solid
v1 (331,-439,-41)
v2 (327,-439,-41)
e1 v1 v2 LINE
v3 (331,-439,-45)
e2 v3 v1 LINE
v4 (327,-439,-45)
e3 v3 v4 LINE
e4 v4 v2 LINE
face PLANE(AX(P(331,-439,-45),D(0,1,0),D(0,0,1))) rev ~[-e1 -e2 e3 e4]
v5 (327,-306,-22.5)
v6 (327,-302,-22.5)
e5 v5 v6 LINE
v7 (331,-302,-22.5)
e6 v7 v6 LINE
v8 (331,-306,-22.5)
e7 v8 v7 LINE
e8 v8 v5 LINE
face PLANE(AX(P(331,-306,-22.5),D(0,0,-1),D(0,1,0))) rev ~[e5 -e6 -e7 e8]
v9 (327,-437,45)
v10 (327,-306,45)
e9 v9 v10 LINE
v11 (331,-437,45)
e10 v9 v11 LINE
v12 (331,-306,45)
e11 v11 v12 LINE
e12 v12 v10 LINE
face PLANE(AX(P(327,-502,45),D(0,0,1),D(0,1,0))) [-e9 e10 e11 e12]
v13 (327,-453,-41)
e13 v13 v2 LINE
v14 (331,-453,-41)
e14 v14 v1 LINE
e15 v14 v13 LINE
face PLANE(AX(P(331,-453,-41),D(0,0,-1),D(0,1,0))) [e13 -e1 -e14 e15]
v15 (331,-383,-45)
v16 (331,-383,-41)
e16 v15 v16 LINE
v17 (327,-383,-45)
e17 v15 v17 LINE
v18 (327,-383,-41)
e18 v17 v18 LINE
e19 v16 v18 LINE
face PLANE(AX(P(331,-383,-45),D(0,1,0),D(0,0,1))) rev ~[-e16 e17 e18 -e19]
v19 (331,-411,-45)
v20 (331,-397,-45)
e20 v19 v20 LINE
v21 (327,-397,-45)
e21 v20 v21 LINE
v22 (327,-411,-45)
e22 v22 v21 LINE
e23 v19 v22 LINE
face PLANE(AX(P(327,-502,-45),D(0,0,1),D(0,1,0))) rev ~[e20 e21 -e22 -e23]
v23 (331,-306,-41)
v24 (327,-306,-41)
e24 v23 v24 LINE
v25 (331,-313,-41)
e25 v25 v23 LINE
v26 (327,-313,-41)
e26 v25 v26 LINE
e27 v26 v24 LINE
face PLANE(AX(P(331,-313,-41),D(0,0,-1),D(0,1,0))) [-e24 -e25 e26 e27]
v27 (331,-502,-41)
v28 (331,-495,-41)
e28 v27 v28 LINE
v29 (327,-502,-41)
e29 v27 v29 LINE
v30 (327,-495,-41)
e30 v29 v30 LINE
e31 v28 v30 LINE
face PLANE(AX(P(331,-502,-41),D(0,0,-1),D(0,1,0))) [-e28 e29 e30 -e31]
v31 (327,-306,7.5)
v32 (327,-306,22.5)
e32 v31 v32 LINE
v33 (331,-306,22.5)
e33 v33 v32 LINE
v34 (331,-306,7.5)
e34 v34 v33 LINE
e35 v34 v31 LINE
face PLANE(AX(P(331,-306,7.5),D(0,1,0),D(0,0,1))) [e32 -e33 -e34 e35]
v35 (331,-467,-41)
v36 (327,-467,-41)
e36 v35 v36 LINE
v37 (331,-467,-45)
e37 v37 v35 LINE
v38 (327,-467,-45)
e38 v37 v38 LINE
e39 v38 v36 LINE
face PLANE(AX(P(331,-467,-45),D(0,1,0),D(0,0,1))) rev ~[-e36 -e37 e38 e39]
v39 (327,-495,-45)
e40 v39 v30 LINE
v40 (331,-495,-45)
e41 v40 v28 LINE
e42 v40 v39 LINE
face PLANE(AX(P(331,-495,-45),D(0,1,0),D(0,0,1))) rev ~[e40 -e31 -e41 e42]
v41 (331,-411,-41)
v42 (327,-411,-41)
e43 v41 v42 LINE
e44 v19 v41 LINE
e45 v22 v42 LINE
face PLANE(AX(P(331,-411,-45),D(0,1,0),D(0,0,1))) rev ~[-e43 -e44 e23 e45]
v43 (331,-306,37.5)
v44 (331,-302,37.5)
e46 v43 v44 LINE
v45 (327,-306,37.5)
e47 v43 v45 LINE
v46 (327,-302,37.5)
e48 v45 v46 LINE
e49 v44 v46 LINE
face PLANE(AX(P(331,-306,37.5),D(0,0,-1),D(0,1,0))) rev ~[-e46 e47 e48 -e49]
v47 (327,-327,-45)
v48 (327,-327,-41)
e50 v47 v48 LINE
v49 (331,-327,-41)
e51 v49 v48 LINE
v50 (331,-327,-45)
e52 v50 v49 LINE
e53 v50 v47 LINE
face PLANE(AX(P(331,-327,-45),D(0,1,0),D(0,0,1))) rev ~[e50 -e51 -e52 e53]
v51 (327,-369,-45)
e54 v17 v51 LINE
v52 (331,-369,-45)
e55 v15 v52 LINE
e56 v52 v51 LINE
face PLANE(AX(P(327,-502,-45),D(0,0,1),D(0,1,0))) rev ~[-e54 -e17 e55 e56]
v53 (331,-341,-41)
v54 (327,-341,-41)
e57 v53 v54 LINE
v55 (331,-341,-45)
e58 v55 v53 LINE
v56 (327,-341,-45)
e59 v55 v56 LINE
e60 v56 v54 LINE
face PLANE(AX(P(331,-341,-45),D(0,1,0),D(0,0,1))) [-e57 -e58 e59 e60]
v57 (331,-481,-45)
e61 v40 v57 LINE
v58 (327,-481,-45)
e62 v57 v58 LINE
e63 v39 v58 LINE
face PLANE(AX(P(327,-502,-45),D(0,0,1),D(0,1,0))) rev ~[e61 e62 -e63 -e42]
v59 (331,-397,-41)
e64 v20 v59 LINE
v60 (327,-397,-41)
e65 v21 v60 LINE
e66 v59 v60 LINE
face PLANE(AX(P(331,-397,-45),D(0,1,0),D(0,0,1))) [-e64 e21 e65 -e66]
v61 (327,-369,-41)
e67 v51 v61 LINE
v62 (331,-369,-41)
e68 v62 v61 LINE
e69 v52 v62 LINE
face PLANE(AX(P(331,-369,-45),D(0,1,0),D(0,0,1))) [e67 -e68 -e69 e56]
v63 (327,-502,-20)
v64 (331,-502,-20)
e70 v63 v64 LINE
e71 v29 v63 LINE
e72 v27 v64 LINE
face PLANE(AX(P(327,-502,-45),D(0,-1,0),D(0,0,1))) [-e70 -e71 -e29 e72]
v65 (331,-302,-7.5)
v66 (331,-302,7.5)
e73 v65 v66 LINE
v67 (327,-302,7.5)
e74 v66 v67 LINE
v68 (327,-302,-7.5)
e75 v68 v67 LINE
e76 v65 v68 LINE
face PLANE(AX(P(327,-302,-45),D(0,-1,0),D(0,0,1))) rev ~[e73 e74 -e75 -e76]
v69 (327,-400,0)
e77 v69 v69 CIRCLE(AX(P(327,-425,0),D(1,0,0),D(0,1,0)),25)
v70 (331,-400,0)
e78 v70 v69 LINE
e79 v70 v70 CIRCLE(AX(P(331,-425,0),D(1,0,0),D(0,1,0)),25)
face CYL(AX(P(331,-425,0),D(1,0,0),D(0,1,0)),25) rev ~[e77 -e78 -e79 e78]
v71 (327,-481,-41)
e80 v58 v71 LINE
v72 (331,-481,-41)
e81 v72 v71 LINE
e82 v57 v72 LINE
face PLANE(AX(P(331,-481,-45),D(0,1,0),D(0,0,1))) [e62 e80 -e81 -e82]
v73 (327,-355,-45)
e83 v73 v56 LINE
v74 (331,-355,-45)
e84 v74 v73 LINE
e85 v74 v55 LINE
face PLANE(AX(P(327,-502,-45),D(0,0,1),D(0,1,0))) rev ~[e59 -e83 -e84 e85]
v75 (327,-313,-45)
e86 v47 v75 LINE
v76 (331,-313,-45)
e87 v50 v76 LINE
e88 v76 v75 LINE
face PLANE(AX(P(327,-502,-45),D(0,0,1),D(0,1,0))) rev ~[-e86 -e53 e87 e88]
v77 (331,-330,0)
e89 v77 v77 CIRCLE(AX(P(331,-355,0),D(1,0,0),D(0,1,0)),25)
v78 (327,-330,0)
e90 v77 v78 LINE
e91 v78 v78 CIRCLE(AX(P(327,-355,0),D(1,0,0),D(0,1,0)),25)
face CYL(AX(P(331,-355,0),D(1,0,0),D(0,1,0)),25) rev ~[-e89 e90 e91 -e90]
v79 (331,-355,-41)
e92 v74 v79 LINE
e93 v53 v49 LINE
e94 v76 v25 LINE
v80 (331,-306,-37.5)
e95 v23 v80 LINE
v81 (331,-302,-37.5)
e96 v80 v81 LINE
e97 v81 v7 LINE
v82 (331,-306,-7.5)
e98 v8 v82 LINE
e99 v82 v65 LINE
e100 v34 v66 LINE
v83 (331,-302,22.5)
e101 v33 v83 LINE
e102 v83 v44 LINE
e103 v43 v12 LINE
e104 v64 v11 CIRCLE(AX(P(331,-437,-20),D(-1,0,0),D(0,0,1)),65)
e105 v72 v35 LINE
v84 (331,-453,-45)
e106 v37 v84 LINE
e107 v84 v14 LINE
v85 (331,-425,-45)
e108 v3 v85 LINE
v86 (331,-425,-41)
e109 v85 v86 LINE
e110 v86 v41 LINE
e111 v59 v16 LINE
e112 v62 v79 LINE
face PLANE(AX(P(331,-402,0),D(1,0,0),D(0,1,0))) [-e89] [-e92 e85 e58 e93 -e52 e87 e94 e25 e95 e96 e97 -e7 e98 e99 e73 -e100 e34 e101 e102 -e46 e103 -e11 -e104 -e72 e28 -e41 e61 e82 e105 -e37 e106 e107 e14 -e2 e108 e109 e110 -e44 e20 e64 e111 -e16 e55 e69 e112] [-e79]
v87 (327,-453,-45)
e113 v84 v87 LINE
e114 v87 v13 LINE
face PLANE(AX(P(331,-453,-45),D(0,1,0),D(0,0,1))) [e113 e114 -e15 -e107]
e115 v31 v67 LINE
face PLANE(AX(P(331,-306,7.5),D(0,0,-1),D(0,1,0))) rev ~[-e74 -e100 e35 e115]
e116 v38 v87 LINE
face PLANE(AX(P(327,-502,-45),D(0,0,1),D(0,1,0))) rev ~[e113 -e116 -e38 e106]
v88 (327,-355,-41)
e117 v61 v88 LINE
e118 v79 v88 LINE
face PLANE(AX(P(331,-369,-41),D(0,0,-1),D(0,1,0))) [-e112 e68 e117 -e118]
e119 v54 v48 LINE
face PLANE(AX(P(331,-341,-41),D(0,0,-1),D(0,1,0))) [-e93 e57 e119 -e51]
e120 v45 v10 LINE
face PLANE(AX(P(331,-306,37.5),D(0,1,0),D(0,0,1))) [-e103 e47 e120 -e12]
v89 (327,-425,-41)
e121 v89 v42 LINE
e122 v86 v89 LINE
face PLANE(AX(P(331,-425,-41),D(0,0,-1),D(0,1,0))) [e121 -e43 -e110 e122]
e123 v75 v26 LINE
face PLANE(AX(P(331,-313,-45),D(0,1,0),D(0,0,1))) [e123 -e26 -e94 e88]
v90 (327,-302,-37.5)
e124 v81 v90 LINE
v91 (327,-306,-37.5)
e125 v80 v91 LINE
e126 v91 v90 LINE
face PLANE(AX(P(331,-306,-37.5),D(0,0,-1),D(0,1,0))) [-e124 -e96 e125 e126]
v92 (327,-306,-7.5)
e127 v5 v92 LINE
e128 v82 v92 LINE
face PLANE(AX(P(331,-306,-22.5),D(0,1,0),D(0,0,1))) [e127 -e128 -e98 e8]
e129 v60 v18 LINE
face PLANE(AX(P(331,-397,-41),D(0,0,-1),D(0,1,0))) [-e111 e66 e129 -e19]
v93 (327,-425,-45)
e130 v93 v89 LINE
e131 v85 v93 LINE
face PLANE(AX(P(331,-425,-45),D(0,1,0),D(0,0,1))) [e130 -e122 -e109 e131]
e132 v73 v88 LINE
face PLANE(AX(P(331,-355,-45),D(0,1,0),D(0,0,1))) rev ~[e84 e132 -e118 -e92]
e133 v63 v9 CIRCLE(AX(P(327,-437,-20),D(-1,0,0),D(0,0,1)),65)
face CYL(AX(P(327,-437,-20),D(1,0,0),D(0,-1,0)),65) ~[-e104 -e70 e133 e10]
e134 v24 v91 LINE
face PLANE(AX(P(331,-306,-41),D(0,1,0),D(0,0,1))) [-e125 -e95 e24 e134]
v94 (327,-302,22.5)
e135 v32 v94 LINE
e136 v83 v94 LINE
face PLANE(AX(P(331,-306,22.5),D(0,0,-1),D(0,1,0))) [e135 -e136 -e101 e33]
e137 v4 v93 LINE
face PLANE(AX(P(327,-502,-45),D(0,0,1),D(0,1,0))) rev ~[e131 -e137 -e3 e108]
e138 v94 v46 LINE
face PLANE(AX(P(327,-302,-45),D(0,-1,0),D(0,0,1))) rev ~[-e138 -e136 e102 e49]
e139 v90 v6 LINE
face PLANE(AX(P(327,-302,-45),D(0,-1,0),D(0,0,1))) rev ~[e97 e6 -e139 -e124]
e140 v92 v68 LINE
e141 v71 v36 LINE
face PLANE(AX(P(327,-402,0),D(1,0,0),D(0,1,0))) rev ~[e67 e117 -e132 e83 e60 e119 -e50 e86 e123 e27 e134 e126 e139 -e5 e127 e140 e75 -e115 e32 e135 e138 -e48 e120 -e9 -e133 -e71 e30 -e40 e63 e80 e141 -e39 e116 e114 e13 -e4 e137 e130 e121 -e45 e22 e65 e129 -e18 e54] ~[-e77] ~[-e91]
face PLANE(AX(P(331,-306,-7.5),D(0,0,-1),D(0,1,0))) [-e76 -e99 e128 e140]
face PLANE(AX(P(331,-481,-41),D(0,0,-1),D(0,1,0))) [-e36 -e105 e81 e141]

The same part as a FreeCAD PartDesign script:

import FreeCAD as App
import Part
import Sketcher

V = App.Vector


def edges_at(feature, points):
    """Names of the edges that pass closest to the given points."""
    edges = feature.Shape.Edges
    near = lambda p: min(range(len(edges)), key=lambda i: edges[i].distToShape(Part.Vertex(*p))[0])
    return sorted({f"Edge{near(p) + 1}" for p in points})


def add_polygon(sketch, points):
    """Adds a closed chain of lines whose ends are joined by coincident constraints."""
    first, n = sketch.GeometryCount, len(points)
    for a, b in zip(points, points[1:] + points[:1]):
        sketch.addGeometry(Part.LineSegment(App.Vector(*a, 0), App.Vector(*b, 0)), False)
    for i in range(n):
        sketch.addConstraint(Sketcher.Constraint("Coincident", first + i, 2, first + (i + 1) % n, 1))

doc = App.newDocument("Part")
body = doc.addObject("PartDesign::Body", "Body")

# Sketch on YZ plane
sketch1 = body.newObject("Sketcher::SketchObject", "Sketch")
sketch1.AttachmentSupport = (doc.getObject("YZ_Plane"), [""])
sketch1.MapMode = "FlatFace"
add_polygon(sketch1, [(-100, 45), (-100, -45), (100, -45), (100, 45)])  # lines 0-3
sketch1.addConstraint([
    Sketcher.Constraint("Vertical", 0),
    Sketcher.Constraint("Horizontal", 1),
    Sketcher.Constraint("Vertical", 2),
    Sketcher.Constraint("Horizontal", 3),
    Sketcher.Constraint("Symmetric", 0, 2, 2, 2, -1, 1),
    Sketcher.Constraint("DistanceX", 1, 1, 1, 2, 200.0),
    Sketcher.Constraint("DistanceY", 0, 2, 0, 1, 90.0),
])
pad1 = body.newObject("PartDesign::Pad", "Pad")
pad1.Profile = sketch1
pad1.Length = 4

# Sketch on YZ plane
sketch2 = body.newObject("Sketcher::SketchObject", "Sketch001")
sketch2.AttachmentSupport = (doc.getObject("YZ_Plane"), [""])
sketch2.MapMode = "FlatFace"
sketch2.AttachmentOffset = App.Placement(V(0, 0, 4), App.Rotation())
sketch2.addGeometry(Part.Circle(V(-23, 0, 0), V(0, 0, 1), 25), False)  # 0
sketch2.addGeometry(Part.Circle(V(47, 0, 0), V(0, 0, 1), 25), False)  # 1
add_polygon(sketch2, [(-100, -41), (-100, -45), (-93, -45), (-93, -41)])  # lines 2-5
add_polygon(sketch2, [(-79, -41), (-79, -45), (-65, -45), (-65, -41)])  # lines 6-9
add_polygon(sketch2, [(-51, -41), (-51, -45), (-37, -45), (-37, -41)])  # lines 10-13
add_polygon(sketch2, [(-23, -41), (-23, -45), (-9, -45), (-9, -41)])  # lines 14-17
add_polygon(sketch2, [(5, -41), (5, -45), (19, -45), (19, -41)])  # lines 18-21
add_polygon(sketch2, [(33, -41), (33, -45), (47, -45), (47, -41)])  # lines 22-25
add_polygon(sketch2, [(61, -41), (61, -45), (75, -45), (75, -41)])  # lines 26-29
add_polygon(sketch2, [(96, -7.5), (96, -22.5), (100, -22.5), (100, -7.5)])  # lines 30-33
add_polygon(sketch2, [(96, 22.5), (96, 7.5), (100, 7.5), (100, 22.5)])  # lines 34-37
add_polygon(sketch2, [(96, 45), (96, 37.5), (100, 37.5), (100, 45)])  # lines 38-41
add_polygon(sketch2, [(89, -41), (89, -45), (100, -45), (100, -37.5), (96, -37.5), (96, -41)])  # lines 42-47
sketch2.addConstraint([
    Sketcher.Constraint("Vertical", 2),
    Sketcher.Constraint("Horizontal", 3),
    Sketcher.Constraint("Vertical", 4),
    Sketcher.Constraint("Horizontal", 5),
    Sketcher.Constraint("Vertical", 6),
    Sketcher.Constraint("Horizontal", 7),
    Sketcher.Constraint("Vertical", 8),
    Sketcher.Constraint("Horizontal", 9),
    Sketcher.Constraint("Vertical", 10),
    Sketcher.Constraint("Horizontal", 11),
    Sketcher.Constraint("Vertical", 12),
    Sketcher.Constraint("Horizontal", 13),
    Sketcher.Constraint("Vertical", 14),
    Sketcher.Constraint("Horizontal", 15),
    Sketcher.Constraint("Vertical", 16),
    Sketcher.Constraint("Horizontal", 17),
    Sketcher.Constraint("Vertical", 18),
    Sketcher.Constraint("Horizontal", 19),
    Sketcher.Constraint("Vertical", 20),
    Sketcher.Constraint("Horizontal", 21),
    Sketcher.Constraint("Vertical", 22),
    Sketcher.Constraint("Horizontal", 23),
    Sketcher.Constraint("Vertical", 24),
    Sketcher.Constraint("Horizontal", 25),
    Sketcher.Constraint("Vertical", 26),
    Sketcher.Constraint("Horizontal", 27),
    Sketcher.Constraint("Vertical", 28),
    Sketcher.Constraint("Horizontal", 29),
    Sketcher.Constraint("Vertical", 30),
    Sketcher.Constraint("Horizontal", 31),
    Sketcher.Constraint("Vertical", 32),
    Sketcher.Constraint("Horizontal", 33),
    Sketcher.Constraint("Vertical", 34),
    Sketcher.Constraint("Horizontal", 35),
    Sketcher.Constraint("Vertical", 36),
    Sketcher.Constraint("Horizontal", 37),
    Sketcher.Constraint("Vertical", 38),
    Sketcher.Constraint("Horizontal", 39),
    Sketcher.Constraint("Vertical", 40),
    Sketcher.Constraint("Horizontal", 41),
    Sketcher.Constraint("Vertical", 42),
    Sketcher.Constraint("Horizontal", 43),
    Sketcher.Constraint("Vertical", 44),
    Sketcher.Constraint("Horizontal", 45),
    Sketcher.Constraint("Vertical", 46),
    Sketcher.Constraint("Horizontal", 47),
    Sketcher.Constraint("Equal", 0, 1),
    Sketcher.Constraint("Symmetric", 2, 2, 40, 2, -1, 1),
    Sketcher.Constraint("Symmetric", 2, 2, 43, 2, -2),
    Sketcher.Constraint("Symmetric", 33, 2, 34, 2, -1),
    Sketcher.Constraint("Symmetric", 31, 2, 36, 2, -1),
    Sketcher.Constraint("Symmetric", 38, 2, 45, 2, -1),
    Sketcher.Constraint("PointOnObject", 0, 3, -1),
    Sketcher.Constraint("PointOnObject", 1, 3, -1),
    Sketcher.Constraint("Horizontal", 3, 2, 6, 2),
    Sketcher.Constraint("Horizontal", 5, 2, 8, 2),
    Sketcher.Constraint("Horizontal", 7, 2, 10, 2),
    Sketcher.Constraint("Horizontal", 9, 2, 12, 2),
    Sketcher.Constraint("Horizontal", 11, 2, 14, 2),
    Sketcher.Constraint("Horizontal", 13, 2, 16, 2),
    Sketcher.Constraint("Horizontal", 15, 2, 18, 2),
    Sketcher.Constraint("Horizontal", 17, 2, 20, 2),
    Sketcher.Constraint("Horizontal", 19, 2, 22, 2),
    Sketcher.Constraint("Horizontal", 21, 2, 24, 2),
    Sketcher.Constraint("Horizontal", 23, 2, 26, 2),
    Sketcher.Constraint("Horizontal", 25, 2, 28, 2),
    Sketcher.Constraint("Horizontal", 29, 2, 46, 2),
    Sketcher.Constraint("Vertical", 0, 3, 14, 2),
    Sketcher.Constraint("Vertical", 1, 3, 23, 2),
    Sketcher.Constraint("Vertical", 37, 2, 38, 2),
    Sketcher.Constraint("Vertical", 36, 2, 39, 2),
    Sketcher.Constraint("Equal", 9, 11),
    Sketcher.Constraint("Equal", 13, 15),
    Sketcher.Constraint("Equal", 17, 19),
    Sketcher.Constraint("Equal", 21, 23),
    Sketcher.Constraint("Equal", 25, 27),
    Sketcher.Constraint("Equal", 5, 47),
    Sketcher.Constraint("Equal", 45, 2),
    Sketcher.Constraint("Diameter", 0, 50.0),
    Sketcher.Constraint("DistanceX", 3, 1, 3, 2, 7.0),
    Sketcher.Constraint("DistanceX", 7, 1, 7, 2, 14.0),
    Sketcher.Constraint("DistanceX", 31, 1, 31, 2, 4.0),
    Sketcher.Constraint("DistanceY", 30, 2, 30, 1, 15.0),
    Sketcher.Constraint("DistanceY", 38, 2, 38, 1, 7.5),
    Sketcher.Constraint("DistanceX", 0, 3, -1, 1, 23.0),
    Sketcher.Constraint("DistanceX", -1, 1, 1, 3, 47.0),
    Sketcher.Constraint("DistanceX", 2, 2, -1, 1, 100.0),
    Sketcher.Constraint("DistanceY", 2, 2, -1, 1, 45.0),
    Sketcher.Constraint("DistanceX", 6, 2, -1, 1, 79.0),
    Sketcher.Constraint("DistanceX", 10, 2, -1, 1, 51.0),
    Sketcher.Constraint("DistanceX", -1, 1, 18, 2, 5.0),
    Sketcher.Constraint("DistanceX", -1, 1, 26, 2, 61.0),
    Sketcher.Constraint("DistanceY", 33, 2, 34, 2, 15.0),
])
pocket1 = body.newObject("PartDesign::Pocket", "Pocket")
pocket1.Profile = sketch2
pocket1.Length = 4
doc.recompute()

fillet = body.newObject("PartDesign::Fillet", "Fillet")
fillet.Base = (pocket1, edges_at(pocket1, [(2, -100, 45)]))
fillet.Radius = 65
body2 = doc.addObject("PartDesign::Body", "Body001")
doc.recompute()

body.Placement = App.Placement(V(327, -402, 0), App.Rotation(V(0, 0, 1), 0))
boolean = body2.newObject("PartDesign::Boolean", "Boolean")
boolean.Type = "Fuse"
boolean.addObjects([body])

doc.recompute()
